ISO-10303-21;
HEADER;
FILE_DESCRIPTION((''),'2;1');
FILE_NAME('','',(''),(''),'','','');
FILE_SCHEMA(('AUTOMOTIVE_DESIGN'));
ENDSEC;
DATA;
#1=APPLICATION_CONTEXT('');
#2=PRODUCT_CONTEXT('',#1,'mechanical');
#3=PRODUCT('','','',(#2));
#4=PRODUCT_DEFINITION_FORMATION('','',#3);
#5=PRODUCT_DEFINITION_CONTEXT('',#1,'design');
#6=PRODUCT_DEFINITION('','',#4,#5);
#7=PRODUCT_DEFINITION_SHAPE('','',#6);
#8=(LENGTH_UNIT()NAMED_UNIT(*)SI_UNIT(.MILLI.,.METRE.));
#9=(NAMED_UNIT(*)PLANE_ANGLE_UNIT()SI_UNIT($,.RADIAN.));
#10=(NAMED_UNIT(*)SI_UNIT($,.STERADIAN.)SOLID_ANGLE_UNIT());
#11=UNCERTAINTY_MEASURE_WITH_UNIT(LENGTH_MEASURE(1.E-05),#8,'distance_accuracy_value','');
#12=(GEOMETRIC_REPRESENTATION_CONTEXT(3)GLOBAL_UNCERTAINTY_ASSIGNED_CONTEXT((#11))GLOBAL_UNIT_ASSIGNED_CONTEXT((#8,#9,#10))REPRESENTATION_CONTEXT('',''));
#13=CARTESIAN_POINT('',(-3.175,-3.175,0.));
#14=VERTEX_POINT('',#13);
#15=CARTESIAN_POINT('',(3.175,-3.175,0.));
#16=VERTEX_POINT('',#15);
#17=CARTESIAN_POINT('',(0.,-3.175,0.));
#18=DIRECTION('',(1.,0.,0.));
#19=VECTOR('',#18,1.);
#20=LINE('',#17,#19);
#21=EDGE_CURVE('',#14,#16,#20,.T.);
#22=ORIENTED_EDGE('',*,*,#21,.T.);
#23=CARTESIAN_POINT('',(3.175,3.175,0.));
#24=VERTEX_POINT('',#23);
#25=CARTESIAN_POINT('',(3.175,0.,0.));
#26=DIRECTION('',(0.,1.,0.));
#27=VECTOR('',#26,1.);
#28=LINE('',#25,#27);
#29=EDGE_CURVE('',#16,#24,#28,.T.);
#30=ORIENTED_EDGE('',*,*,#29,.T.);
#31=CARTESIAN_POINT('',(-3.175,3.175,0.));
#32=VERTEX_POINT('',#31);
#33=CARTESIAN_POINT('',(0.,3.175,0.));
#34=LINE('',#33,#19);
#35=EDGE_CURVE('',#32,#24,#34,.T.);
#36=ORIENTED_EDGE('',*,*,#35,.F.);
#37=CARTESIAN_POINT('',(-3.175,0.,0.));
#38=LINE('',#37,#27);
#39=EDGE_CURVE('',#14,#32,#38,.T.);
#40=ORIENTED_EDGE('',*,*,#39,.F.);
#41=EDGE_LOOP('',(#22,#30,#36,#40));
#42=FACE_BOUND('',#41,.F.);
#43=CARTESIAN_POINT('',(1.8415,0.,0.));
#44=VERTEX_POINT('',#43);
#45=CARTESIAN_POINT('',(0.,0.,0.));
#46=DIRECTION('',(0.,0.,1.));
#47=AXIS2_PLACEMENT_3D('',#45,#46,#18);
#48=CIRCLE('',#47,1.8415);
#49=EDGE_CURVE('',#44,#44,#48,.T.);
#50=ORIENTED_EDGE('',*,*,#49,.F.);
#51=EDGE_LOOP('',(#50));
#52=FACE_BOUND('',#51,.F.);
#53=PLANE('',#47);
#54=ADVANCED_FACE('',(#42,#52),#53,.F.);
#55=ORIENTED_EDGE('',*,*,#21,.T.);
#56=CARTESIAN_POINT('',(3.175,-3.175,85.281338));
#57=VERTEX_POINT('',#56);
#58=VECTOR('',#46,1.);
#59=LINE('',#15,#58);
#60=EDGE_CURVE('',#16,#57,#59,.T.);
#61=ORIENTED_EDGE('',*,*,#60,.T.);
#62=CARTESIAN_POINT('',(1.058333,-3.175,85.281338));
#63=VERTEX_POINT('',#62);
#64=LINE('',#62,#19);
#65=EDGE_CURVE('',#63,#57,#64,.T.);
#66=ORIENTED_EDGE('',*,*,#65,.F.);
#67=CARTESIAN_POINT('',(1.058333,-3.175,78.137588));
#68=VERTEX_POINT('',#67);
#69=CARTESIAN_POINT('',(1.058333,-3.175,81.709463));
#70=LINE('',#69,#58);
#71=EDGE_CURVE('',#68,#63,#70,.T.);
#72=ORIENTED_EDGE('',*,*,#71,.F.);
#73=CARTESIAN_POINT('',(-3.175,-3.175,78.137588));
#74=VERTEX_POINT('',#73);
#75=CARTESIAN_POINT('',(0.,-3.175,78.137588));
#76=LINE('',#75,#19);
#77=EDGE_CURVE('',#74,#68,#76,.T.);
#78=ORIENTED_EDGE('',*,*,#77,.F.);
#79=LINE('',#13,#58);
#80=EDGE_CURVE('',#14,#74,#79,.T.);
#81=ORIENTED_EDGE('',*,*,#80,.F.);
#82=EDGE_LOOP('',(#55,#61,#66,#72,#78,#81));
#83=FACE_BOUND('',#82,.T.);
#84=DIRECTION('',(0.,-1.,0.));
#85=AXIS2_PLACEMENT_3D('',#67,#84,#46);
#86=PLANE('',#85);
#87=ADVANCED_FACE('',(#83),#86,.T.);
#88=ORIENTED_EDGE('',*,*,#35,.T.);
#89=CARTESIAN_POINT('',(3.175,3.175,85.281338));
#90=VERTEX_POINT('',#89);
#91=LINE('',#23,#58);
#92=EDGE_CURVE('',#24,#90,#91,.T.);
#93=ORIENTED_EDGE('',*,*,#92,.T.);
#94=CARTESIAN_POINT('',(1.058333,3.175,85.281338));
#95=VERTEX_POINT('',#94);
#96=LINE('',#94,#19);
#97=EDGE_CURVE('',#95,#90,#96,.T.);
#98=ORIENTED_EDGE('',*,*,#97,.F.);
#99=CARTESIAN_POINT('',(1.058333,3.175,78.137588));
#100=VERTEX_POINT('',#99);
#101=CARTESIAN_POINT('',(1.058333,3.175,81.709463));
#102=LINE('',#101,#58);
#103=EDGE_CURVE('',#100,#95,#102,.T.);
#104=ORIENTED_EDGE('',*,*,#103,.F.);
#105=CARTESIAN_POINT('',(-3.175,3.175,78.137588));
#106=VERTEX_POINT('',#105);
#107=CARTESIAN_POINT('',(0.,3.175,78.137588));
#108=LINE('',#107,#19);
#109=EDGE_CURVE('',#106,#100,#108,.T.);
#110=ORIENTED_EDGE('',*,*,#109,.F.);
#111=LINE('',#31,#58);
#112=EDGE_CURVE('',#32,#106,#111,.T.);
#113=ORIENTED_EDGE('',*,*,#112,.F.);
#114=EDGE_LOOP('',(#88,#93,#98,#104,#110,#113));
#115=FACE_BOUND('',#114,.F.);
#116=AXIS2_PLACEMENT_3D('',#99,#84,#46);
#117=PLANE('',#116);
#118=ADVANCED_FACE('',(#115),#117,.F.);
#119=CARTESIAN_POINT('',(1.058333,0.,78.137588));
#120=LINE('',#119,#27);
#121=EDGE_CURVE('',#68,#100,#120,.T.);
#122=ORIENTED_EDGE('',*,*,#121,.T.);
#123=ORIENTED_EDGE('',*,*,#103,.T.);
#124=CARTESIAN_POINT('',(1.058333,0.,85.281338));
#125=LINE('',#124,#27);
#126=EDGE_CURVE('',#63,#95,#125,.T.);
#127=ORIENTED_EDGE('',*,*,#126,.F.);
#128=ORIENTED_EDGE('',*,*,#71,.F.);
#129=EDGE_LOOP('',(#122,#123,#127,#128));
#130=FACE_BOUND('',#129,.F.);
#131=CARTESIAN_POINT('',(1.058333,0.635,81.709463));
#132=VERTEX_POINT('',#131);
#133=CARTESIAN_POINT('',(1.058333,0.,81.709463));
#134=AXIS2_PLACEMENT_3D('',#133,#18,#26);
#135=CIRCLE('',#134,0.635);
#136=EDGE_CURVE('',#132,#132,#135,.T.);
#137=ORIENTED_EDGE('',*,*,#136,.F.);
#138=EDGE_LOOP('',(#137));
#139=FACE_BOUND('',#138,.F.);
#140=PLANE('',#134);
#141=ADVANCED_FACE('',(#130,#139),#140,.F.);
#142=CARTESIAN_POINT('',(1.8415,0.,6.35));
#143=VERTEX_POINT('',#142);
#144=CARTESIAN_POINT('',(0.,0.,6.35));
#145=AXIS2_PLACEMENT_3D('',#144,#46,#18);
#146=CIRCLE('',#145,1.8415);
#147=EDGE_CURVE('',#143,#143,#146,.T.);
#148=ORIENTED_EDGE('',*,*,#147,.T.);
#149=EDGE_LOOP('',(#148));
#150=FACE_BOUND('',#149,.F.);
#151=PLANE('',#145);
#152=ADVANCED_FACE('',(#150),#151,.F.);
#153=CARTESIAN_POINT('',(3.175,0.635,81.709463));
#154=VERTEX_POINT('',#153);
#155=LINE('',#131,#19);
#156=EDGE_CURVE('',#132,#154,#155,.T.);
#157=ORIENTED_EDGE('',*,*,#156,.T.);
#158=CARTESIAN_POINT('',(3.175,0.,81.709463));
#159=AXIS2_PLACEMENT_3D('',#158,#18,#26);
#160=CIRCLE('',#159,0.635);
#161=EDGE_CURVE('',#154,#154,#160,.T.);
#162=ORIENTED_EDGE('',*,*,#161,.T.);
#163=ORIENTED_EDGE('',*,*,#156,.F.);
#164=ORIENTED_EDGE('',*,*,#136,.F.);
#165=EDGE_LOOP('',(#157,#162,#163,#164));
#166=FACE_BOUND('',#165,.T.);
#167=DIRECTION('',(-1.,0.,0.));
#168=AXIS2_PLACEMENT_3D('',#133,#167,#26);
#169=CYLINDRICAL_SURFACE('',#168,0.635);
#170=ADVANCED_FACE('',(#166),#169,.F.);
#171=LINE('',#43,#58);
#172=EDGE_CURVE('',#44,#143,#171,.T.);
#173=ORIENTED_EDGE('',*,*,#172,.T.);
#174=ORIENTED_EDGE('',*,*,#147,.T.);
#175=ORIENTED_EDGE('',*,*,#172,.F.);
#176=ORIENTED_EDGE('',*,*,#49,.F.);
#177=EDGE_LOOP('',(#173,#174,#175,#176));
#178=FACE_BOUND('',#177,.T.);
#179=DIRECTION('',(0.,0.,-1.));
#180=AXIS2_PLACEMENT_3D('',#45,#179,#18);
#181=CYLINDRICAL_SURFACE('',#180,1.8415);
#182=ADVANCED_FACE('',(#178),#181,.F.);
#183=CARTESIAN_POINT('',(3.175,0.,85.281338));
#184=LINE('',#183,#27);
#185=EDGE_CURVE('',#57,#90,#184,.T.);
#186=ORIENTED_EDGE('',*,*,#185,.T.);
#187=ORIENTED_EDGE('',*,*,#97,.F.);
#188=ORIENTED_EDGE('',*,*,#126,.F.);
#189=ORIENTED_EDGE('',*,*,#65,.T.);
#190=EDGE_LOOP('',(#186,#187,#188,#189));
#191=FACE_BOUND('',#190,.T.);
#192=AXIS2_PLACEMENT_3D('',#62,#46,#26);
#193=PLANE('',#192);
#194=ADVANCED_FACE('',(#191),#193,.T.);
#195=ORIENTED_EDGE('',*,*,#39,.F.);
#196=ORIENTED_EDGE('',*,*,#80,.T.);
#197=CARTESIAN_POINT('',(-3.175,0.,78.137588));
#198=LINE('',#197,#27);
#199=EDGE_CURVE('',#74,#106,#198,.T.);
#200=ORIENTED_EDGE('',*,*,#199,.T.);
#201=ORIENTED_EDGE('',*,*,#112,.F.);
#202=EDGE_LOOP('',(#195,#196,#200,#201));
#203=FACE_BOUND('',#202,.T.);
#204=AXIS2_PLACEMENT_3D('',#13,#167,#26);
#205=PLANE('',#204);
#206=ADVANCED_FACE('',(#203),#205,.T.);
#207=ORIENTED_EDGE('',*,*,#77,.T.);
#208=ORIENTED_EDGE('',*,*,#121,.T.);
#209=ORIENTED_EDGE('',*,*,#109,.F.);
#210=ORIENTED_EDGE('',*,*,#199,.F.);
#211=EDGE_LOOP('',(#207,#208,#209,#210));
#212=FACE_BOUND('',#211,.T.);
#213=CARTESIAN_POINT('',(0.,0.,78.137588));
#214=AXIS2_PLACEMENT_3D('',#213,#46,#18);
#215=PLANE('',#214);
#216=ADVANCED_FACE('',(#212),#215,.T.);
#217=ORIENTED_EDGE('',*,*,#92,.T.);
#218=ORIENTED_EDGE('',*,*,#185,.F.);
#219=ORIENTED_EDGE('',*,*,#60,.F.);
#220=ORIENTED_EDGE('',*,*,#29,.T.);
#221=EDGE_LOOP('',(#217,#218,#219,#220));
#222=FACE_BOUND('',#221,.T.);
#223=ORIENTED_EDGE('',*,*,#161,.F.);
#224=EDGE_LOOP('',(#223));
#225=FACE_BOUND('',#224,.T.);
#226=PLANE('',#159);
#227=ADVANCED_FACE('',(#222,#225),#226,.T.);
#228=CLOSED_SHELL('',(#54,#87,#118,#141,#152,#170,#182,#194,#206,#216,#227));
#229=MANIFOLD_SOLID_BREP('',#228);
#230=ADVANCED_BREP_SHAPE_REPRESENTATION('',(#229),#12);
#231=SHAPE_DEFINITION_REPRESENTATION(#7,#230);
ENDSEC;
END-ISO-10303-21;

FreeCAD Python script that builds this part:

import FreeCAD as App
import Part
import Sketcher
Q = App.Units.Quantity

doc = App.newDocument("Part")
params = doc.addObject("Spreadsheet::Sheet", "Params")
for row, (alias, value) in enumerate([
    ("sketch1_width", "0.25 in"),
    ("pad1_length", "78.137588 mm"),
    ("sketch2_diameter", "0.145 in"),
    ("pocket1_length", "0.25 in"),
    ("sketch3_diameter", "0.05 in"),
    ("sketch3_width", "0.25 in"),
    ("sketch3_height", "0.28125 in"),
    ("pad2_length", "2.116667 mm"),
], start=1):
    params.set(f"A{row}", alias)
    params.set(f"B{row}", "=" + value)
    params.setAlias(f"B{row}", alias)

body = doc.addObject("PartDesign::Body", "Body")

sketch1 = body.newObject("Sketcher::SketchObject", "Sketch")
sketch1.AttachmentSupport = (doc.getObject("XY_Plane"), [""])
sketch1.MapMode = "FlatFace"
sketch1.addGeometry([
    Part.LineSegment(App.Vector(-3, 3, 0), App.Vector(-3, -3, 0)),
    Part.LineSegment(App.Vector(-3, -3, 0), App.Vector(3, -3, 0)),
    Part.LineSegment(App.Vector(3, -3, 0), App.Vector(3, 3, 0)),
    Part.LineSegment(App.Vector(3, 3, 0), App.Vector(-3, 3, 0)),
], False)
sketch1.addConstraint([
    Sketcher.Constraint("Coincident", 0, 2, 1, 1),
    Sketcher.Constraint("Coincident", 1, 2, 2, 1),
    Sketcher.Constraint("Coincident", 2, 2, 3, 1),
    Sketcher.Constraint("Coincident", 3, 2, 0, 1),
    Sketcher.Constraint("Vertical", 0),
    Sketcher.Constraint("Horizontal", 1),
    Sketcher.Constraint("Vertical", 2),
    Sketcher.Constraint("Horizontal", 3),
    Sketcher.Constraint("Symmetric", 0, 2, 2, 2, -1, 1),
    Sketcher.Constraint("Equal", 3, 0),
    Sketcher.Constraint("DistanceX", 1, 1, 1, 2, Q("0.25 in")),
])
sketch1.setExpression("Constraints[10]", "Params.sketch1_width")
pad1 = body.newObject("PartDesign::Pad", "Pad")
pad1.Profile = sketch1
pad1.setExpression("Length", "Params.pad1_length")

sketch2 = body.newObject("Sketcher::SketchObject", "Sketch001")
sketch2.AttachmentSupport = (doc.getObject("XY_Plane"), [""])
sketch2.MapMode = "FlatFace"
sketch2.addGeometry(Part.Circle(App.Vector(0, 0, 0), App.Vector(0, 0, 1), 1.8), False)
sketch2.addConstraint([
    Sketcher.Constraint("Coincident", 0, 3, -1, 1),
    Sketcher.Constraint("Diameter", 0, Q("0.145 in")),
])
sketch2.setExpression("Constraints[1]", "Params.sketch2_diameter")
pocket1 = body.newObject("PartDesign::Pocket", "Pocket")
pocket1.Profile = sketch2
pocket1.setExpression("Length", "Params.pocket1_length")
pocket1.Reversed = True

sketch3 = body.newObject("Sketcher::SketchObject", "Sketch002")
sketch3.AttachmentSupport = (doc.getObject("YZ_Plane"), [""])
sketch3.MapMode = "FlatFace"
sketch3.AttachmentOffset = App.Placement(App.Vector(0, 0, 1.058333), App.Rotation())
sketch3.addGeometry([
    Part.LineSegment(App.Vector(-3.2, 85.3, 0), App.Vector(-3.2, 78.1, 0)),
    Part.LineSegment(App.Vector(-3.2, 78.1, 0), App.Vector(3.2, 78.1, 0)),
    Part.LineSegment(App.Vector(3.2, 78.1, 0), App.Vector(3.2, 85.3, 0)),
    Part.LineSegment(App.Vector(3.2, 85.3, 0), App.Vector(-3.2, 85.3, 0)),
    Part.Circle(App.Vector(0, 81.7, 0), App.Vector(0, 0, 1), 0.6),
], False)
sketch3.addConstraint([
    Sketcher.Constraint("Coincident", 0, 2, 1, 1),
    Sketcher.Constraint("Coincident", 1, 2, 2, 1),
    Sketcher.Constraint("Coincident", 2, 2, 3, 1),
    Sketcher.Constraint("Coincident", 3, 2, 0, 1),
    Sketcher.Constraint("Vertical", 0),
    Sketcher.Constraint("Horizontal", 1),
    Sketcher.Constraint("Vertical", 2),
    Sketcher.Constraint("Horizontal", 3),
    Sketcher.Constraint("PointOnObject", 4, 3, -2),
    Sketcher.Constraint("Diameter", 4, Q("0.05 in")),
    Sketcher.Constraint("DistanceX", 1, 1, 1, 2, Q("0.25 in")),
    Sketcher.Constraint("DistanceY", 0, 2, 0, 1, Q("0.28125 in")),
    Sketcher.Constraint("DistanceX", 0, 2, -1, 1, Q("0.125 in")),
    Sketcher.Constraint("DistanceY", 0, 2, 4, 3, Q("0.140625 in")),
    Sketcher.Constraint("DistanceY", -1, 1, 0, 2, 78.137588),
])
sketch3.setExpression("Constraints[9]", "Params.sketch3_diameter")
sketch3.setExpression("Constraints[10]", "Params.sketch3_width")
sketch3.setExpression("Constraints[11]", "Params.sketch3_height")
pad2 = body.newObject("PartDesign::Pad", "Pad001")
pad2.Profile = sketch3
pad2.setExpression("Length", "Params.pad2_length")

doc.recompute()
